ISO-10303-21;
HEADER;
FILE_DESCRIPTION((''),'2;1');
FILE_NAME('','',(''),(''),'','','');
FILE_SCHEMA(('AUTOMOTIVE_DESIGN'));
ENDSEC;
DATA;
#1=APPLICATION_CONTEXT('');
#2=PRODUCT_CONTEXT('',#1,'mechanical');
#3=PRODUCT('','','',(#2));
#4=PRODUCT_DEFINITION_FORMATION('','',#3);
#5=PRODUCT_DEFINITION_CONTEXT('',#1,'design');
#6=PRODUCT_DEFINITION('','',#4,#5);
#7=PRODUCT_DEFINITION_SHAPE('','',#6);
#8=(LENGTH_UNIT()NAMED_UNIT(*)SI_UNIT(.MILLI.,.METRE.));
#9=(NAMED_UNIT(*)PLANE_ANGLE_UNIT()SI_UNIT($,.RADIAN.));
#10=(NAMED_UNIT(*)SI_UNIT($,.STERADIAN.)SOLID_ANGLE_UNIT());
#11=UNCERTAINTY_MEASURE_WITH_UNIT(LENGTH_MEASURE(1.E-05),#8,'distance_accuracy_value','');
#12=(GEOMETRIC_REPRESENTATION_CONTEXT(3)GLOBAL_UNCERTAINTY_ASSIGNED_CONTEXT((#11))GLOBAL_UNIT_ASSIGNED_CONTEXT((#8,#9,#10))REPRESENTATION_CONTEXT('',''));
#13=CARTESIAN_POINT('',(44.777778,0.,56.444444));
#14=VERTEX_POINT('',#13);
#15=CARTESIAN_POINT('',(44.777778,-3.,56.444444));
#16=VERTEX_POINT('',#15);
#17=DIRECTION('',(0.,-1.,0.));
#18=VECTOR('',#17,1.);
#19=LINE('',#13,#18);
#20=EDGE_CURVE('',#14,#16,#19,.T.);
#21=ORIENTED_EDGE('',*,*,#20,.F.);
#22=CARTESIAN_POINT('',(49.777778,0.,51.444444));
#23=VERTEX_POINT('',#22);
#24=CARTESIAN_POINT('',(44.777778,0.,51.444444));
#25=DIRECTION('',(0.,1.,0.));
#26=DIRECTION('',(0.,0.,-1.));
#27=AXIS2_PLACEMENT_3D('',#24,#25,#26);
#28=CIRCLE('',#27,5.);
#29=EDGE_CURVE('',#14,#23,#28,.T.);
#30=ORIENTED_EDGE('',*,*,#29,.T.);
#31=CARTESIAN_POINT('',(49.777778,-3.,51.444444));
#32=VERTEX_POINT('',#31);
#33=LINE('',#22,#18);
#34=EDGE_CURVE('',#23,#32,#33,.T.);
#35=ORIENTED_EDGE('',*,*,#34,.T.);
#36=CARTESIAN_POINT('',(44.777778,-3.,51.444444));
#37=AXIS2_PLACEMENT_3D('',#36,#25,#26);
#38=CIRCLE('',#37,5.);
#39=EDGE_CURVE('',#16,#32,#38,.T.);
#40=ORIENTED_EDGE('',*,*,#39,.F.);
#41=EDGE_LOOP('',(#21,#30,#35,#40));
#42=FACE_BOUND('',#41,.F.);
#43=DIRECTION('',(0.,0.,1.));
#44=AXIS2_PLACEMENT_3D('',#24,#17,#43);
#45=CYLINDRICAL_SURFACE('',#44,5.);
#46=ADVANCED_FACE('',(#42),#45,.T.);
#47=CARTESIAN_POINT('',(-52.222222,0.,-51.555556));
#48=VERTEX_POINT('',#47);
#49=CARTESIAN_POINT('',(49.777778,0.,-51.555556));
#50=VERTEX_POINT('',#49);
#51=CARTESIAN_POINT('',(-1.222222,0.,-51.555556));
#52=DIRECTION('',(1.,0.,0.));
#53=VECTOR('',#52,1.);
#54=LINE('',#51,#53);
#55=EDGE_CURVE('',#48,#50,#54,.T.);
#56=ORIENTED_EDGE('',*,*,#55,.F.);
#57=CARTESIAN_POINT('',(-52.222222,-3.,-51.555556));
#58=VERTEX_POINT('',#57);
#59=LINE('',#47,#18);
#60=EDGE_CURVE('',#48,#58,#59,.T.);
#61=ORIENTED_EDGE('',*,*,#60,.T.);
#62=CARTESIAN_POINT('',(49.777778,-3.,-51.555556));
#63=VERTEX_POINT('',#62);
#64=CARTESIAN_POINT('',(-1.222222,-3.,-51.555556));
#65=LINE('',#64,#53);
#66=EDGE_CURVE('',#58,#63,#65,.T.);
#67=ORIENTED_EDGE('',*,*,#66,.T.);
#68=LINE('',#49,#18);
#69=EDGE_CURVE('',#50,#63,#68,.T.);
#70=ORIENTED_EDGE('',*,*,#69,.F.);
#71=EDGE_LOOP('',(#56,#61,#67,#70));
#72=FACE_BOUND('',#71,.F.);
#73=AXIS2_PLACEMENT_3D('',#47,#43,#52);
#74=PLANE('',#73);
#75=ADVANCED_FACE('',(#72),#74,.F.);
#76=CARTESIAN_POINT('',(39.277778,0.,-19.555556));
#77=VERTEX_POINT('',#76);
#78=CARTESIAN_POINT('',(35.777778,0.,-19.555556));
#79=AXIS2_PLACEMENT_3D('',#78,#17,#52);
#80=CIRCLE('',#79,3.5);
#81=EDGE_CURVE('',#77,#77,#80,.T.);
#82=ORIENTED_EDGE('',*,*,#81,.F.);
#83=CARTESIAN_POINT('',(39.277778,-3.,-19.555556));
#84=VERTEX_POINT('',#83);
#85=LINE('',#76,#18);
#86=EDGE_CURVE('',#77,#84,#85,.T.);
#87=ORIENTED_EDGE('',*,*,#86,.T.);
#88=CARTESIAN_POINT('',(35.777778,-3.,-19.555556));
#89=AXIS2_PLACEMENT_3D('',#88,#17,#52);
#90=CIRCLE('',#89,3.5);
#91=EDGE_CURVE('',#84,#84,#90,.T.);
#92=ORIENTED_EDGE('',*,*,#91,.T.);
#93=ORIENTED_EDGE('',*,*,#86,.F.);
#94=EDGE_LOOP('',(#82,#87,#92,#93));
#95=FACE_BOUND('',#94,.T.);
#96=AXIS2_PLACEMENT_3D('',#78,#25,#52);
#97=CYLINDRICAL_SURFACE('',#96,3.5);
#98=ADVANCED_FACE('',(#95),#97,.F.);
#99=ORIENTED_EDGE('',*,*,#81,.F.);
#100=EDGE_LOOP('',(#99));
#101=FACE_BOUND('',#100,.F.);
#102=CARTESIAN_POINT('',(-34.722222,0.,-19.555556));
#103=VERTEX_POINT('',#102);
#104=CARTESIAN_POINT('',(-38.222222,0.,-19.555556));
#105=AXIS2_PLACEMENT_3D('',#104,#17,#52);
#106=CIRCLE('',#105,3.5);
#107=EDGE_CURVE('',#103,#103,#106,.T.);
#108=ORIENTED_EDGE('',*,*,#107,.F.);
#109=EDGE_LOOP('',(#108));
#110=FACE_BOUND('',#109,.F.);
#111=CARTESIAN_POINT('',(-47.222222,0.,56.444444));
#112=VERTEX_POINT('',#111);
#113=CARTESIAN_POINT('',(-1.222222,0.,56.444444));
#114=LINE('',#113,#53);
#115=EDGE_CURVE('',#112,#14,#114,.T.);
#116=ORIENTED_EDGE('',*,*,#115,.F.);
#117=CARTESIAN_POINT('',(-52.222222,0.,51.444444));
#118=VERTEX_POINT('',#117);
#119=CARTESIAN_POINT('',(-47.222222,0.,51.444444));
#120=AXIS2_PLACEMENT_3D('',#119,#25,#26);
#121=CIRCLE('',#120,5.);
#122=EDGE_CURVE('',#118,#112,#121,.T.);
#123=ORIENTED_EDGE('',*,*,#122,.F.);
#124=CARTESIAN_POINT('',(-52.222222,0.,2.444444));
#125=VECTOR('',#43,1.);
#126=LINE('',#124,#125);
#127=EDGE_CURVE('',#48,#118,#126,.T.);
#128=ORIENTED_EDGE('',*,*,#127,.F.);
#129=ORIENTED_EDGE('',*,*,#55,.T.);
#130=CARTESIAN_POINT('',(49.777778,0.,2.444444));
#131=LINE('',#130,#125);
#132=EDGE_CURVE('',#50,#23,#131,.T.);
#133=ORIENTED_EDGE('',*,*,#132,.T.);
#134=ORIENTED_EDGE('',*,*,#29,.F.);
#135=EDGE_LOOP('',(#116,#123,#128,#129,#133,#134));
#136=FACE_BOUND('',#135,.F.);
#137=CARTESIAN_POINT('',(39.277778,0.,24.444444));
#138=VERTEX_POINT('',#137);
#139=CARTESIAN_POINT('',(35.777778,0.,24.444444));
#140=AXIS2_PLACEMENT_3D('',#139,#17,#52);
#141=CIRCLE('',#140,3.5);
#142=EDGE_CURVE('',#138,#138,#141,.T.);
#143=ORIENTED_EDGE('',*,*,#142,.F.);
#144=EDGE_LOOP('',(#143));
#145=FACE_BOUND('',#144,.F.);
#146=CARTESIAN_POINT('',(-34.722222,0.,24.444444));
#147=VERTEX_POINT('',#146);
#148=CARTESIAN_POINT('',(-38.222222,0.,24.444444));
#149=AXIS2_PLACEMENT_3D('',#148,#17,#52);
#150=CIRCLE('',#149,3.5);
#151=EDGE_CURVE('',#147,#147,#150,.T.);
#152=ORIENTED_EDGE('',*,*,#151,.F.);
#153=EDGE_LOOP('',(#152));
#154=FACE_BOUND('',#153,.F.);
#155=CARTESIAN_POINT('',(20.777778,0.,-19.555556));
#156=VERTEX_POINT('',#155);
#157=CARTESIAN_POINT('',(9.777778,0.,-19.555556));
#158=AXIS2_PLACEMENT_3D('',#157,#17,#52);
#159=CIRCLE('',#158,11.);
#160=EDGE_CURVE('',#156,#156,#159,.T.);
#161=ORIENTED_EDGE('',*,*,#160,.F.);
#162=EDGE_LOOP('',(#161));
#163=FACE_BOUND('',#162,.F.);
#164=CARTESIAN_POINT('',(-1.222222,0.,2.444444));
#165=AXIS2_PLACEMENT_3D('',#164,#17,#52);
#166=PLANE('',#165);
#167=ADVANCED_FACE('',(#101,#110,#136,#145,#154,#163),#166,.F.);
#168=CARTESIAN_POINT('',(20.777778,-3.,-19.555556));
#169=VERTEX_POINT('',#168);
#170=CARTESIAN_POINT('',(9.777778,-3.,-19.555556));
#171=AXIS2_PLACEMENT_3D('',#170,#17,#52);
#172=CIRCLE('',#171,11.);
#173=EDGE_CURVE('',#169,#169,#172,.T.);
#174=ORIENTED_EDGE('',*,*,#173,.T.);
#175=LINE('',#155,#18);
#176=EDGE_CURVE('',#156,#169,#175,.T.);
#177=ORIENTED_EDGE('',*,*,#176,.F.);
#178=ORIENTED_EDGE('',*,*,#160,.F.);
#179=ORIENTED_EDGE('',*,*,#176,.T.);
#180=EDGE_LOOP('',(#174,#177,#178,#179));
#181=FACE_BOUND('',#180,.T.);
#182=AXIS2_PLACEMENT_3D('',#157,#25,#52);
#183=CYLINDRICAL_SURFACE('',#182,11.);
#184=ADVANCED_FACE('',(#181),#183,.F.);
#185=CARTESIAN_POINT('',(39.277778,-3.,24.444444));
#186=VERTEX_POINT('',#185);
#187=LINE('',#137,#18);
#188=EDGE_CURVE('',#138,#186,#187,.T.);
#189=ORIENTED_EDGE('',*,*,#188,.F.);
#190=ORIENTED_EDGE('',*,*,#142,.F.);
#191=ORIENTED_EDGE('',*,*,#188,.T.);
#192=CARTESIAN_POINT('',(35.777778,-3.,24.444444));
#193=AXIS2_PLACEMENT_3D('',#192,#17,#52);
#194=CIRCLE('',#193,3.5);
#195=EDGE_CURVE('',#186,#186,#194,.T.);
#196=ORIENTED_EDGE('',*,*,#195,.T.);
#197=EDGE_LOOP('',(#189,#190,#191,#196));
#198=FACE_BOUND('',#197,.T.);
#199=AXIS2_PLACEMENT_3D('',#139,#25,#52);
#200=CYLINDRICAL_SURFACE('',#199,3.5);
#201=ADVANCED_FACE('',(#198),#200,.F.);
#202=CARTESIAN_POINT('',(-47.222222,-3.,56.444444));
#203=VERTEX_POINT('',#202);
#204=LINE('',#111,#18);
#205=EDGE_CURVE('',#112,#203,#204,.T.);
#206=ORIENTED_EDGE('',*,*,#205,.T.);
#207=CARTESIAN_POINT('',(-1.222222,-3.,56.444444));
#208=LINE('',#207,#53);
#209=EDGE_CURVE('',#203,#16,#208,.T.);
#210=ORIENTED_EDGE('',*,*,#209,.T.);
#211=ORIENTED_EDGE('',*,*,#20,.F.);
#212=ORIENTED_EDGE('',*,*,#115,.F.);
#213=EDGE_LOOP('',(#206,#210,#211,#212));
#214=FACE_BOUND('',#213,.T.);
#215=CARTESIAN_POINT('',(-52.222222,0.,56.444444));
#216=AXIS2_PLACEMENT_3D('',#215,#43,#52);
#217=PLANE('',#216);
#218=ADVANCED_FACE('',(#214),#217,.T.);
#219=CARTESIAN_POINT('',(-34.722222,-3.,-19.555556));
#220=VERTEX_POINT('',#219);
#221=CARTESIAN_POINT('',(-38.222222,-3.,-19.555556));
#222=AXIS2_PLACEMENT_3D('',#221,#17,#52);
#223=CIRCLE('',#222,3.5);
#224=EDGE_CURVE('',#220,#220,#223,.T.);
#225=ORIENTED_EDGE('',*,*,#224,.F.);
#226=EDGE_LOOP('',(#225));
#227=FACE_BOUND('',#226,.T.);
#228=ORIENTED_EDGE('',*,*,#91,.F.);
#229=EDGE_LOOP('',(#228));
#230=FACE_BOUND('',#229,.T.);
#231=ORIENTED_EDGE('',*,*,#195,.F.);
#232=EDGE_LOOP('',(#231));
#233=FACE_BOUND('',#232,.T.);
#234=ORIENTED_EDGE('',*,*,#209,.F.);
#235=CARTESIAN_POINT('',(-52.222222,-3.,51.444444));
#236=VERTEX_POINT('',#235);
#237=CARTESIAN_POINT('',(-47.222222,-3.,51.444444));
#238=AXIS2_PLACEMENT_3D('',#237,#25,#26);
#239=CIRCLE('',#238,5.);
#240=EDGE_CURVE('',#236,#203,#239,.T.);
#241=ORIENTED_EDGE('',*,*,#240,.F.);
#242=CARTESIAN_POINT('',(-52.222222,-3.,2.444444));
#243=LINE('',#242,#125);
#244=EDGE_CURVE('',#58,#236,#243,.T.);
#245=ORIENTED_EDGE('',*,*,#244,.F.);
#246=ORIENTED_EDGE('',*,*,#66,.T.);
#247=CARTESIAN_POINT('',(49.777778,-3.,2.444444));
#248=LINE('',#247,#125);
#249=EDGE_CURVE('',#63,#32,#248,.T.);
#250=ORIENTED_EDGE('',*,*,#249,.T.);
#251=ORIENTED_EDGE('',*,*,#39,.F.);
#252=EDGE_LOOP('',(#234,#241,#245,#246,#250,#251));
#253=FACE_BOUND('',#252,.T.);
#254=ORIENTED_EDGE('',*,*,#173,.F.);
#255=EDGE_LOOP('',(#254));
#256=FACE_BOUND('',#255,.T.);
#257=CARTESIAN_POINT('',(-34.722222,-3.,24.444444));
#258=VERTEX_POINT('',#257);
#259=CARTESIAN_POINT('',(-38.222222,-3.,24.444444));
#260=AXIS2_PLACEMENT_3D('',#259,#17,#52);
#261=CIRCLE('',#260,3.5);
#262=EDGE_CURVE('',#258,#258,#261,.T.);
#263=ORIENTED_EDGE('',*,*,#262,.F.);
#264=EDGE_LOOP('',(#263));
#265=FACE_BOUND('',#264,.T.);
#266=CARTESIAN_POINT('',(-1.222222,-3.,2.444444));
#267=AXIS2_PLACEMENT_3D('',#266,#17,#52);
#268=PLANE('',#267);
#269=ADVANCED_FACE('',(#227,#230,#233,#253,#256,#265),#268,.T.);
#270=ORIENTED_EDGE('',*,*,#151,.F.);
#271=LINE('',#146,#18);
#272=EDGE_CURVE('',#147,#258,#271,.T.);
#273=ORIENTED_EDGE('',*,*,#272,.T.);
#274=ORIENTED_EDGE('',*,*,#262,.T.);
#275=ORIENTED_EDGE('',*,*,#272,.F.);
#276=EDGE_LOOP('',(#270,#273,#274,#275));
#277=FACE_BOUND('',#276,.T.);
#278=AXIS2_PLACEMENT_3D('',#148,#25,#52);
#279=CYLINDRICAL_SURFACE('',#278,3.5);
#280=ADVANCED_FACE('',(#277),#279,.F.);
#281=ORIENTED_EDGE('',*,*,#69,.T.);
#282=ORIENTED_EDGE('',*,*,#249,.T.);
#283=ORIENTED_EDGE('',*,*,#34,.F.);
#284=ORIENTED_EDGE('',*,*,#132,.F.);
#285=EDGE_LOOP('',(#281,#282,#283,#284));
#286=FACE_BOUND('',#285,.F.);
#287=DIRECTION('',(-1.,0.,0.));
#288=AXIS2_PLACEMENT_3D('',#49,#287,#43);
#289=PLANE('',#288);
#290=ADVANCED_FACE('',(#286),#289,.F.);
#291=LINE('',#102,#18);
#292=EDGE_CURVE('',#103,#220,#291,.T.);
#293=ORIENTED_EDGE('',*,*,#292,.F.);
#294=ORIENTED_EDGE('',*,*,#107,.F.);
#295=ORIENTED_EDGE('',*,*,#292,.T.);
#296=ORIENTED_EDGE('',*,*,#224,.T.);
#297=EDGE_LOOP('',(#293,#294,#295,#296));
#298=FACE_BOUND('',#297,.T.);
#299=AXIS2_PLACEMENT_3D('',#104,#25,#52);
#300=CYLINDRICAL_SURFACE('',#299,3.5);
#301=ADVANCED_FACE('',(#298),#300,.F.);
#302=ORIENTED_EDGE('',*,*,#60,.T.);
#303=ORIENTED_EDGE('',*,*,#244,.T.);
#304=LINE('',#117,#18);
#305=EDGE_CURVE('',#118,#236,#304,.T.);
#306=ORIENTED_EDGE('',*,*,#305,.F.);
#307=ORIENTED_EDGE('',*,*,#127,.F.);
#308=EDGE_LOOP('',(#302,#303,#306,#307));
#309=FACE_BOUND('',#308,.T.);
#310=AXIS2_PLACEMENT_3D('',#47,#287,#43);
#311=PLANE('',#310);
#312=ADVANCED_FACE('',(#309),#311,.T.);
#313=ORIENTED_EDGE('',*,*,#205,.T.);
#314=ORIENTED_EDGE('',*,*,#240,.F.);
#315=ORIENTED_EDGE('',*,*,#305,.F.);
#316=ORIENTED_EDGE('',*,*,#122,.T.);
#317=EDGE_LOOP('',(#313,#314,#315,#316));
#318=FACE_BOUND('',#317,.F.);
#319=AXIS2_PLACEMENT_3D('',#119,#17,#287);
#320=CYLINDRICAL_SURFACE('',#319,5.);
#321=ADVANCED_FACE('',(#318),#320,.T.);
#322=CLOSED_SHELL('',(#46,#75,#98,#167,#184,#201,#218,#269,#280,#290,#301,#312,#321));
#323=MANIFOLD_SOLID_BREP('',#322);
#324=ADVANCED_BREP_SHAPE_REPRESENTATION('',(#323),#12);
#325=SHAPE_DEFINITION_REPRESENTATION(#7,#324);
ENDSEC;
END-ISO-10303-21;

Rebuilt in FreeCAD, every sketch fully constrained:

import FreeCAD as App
import Part
import Sketcher

V = App.Vector
Q = App.Units.Quantity


def edges_at(feature, points):
    """Names of the edges that pass closest to the given points."""
    edges = feature.Shape.Edges
    near = lambda p: min(range(len(edges)), key=lambda i: edges[i].distToShape(Part.Vertex(*p))[0])
    return sorted({f"Edge{near(p) + 1}" for p in points})

doc = App.newDocument("Part")
body = doc.addObject("PartDesign::Body", "Body")

sketch1 = body.newObject("Sketcher::SketchObject", "Sketch")
sketch1.AttachmentSupport = (doc.getObject("XZ_Plane"), [""])
sketch1.MapMode = "FlatFace"
sketch1.addGeometry([
    Part.LineSegment(V(-52.2, 56.4, 0), V(-52.2, -51.6, 0)),
    Part.LineSegment(V(-52.2, -51.6, 0), V(49.8, -51.6, 0)),
    Part.LineSegment(V(49.8, -51.6, 0), V(49.8, 56.4, 0)),
    Part.LineSegment(V(49.8, 56.4, 0), V(-52.2, 56.4, 0)),
    Part.Circle(V(-38.2, -19.6, 0), V(0, 0, 1), 3.5),
    Part.Circle(V(9.8, -19.6, 0), V(0, 0, 1), 11),
    Part.Circle(V(35.8, -19.6, 0), V(0, 0, 1), 3.5),
    Part.Circle(V(-38.2, 24.4, 0), V(0, 0, 1), 3.5),
    Part.Circle(V(35.8, 24.4, 0), V(0, 0, 1), 3.5),
], False)
sketch1.addConstraint([
    Sketcher.Constraint("Coincident", 0, 2, 1, 1),
    Sketcher.Constraint("Coincident", 1, 2, 2, 1),
    Sketcher.Constraint("Coincident", 2, 2, 3, 1),
    Sketcher.Constraint("Coincident", 3, 2, 0, 1),
    Sketcher.Constraint("Vertical", 0),
    Sketcher.Constraint("Horizontal", 1),
    Sketcher.Constraint("Vertical", 2),
    Sketcher.Constraint("Horizontal", 3),
    Sketcher.Constraint("Equal", 4, 6),
    Sketcher.Constraint("Equal", 6, 7),
    Sketcher.Constraint("Equal", 7, 8),
    Sketcher.Constraint("Horizontal", 4, 3, 5, 3),
    Sketcher.Constraint("Horizontal", 5, 3, 6, 3),
    Sketcher.Constraint("Horizontal", 7, 3, 8, 3),
    Sketcher.Constraint("Vertical", 4, 3, 7, 3),
    Sketcher.Constraint("Vertical", 6, 3, 8, 3),
    Sketcher.Constraint("Diameter", 4, Q("7 mm")),
    Sketcher.Constraint("Diameter", 5, Q("22 mm")),
    Sketcher.Constraint("DistanceX", 1, 1, 1, 2, Q("102 mm")),
    Sketcher.Constraint("DistanceY", 0, 2, 0, 1, Q("108 mm")),
    Sketcher.Constraint("DistanceX", 4, 3, 5, 3, Q("48 mm")),
    Sketcher.Constraint("DistanceX", 5, 3, 6, 3, Q("26 mm")),
    Sketcher.Constraint("DistanceY", 4, 3, 7, 3, Q("44 mm")),
    Sketcher.Constraint("DistanceX", 0, 2, 4, 3, Q("14 mm")),
    Sketcher.Constraint("DistanceY", 0, 2, 4, 3, Q("32 mm")),
    Sketcher.Constraint("DistanceX", 4, 3, -1, 1, Q("38.222222 mm")),
    Sketcher.Constraint("DistanceY", 4, 3, -1, 1, Q("19.555556 mm")),
])
pad1 = body.newObject("PartDesign::Pad", "Pad")
pad1.Profile = sketch1
pad1.Length = 3
doc.recompute()

fillet = body.newObject("PartDesign::Fillet", "Fillet")
fillet.Base = (pad1, edges_at(pad1, [(49.778, -1.5, 56.444), (-52.222, -1.5, 56.444)]))
fillet.Radius = 5

doc.recompute()
